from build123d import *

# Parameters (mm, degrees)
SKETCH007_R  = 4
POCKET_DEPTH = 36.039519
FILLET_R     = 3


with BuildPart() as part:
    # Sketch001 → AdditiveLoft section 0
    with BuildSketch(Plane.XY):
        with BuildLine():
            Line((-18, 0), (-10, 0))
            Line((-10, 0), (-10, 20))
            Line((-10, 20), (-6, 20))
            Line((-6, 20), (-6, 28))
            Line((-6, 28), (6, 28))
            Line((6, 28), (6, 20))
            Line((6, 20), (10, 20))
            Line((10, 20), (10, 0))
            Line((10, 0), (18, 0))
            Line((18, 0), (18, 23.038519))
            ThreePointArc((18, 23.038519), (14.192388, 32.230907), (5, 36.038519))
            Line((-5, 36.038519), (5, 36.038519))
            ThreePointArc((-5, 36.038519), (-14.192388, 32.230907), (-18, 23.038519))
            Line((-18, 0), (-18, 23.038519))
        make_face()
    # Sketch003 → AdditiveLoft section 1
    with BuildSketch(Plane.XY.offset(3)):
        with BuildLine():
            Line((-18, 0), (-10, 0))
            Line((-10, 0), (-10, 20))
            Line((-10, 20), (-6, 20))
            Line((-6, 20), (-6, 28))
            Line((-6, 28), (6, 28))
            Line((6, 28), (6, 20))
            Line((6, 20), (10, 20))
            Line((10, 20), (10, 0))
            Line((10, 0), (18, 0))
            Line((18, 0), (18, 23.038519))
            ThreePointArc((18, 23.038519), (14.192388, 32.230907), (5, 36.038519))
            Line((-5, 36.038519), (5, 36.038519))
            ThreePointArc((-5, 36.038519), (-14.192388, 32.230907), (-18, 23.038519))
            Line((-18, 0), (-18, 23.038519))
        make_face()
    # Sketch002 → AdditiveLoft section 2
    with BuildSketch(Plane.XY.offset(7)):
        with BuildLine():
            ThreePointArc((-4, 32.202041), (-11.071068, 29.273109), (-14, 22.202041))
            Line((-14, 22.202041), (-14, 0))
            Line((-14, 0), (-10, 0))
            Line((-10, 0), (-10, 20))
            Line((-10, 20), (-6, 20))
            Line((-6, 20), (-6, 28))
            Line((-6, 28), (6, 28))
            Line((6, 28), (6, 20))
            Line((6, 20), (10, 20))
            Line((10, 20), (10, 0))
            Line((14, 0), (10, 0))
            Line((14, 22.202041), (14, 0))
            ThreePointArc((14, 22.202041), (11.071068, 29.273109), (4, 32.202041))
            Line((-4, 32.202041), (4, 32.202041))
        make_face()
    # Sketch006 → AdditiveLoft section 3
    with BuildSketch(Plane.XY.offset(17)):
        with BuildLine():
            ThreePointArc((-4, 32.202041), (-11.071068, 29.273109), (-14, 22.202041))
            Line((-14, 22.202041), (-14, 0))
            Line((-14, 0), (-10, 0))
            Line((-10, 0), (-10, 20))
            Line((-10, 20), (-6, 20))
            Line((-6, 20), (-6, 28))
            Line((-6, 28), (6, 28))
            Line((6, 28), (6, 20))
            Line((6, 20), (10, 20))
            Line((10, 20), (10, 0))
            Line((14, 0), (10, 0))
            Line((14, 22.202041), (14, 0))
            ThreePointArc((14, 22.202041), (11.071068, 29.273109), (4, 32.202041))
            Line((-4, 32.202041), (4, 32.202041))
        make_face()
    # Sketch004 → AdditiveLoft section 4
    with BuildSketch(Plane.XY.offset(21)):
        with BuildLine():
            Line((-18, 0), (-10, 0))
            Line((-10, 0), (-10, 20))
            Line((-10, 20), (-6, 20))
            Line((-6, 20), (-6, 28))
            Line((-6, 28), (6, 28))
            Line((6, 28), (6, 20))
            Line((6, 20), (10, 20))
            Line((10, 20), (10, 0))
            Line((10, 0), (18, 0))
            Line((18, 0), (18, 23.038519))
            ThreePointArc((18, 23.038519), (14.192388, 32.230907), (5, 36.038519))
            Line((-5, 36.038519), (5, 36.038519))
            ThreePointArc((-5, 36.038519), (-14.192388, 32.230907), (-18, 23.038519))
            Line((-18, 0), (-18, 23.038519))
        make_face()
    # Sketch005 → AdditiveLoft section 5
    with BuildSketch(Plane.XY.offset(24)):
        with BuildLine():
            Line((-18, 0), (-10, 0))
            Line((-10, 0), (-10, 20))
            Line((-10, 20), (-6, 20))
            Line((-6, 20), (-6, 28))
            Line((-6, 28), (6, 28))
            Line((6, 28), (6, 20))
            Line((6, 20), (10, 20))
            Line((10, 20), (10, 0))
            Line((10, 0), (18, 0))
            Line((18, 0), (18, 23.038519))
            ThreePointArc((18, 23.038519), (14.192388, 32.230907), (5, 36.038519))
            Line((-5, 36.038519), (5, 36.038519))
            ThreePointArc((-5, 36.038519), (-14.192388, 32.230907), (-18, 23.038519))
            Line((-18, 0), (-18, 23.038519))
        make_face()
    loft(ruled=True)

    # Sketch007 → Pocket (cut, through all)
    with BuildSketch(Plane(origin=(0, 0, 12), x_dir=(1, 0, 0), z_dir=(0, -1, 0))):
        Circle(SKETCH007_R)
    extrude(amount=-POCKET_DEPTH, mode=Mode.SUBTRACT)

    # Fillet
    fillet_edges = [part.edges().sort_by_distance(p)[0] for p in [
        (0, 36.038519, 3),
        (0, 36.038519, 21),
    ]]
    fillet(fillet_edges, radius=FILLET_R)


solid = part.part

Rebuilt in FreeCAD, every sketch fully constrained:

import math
import FreeCAD as App
import Part
import Sketcher


def edges_at(feature, points):
    """Names of the edges that pass closest to the given points."""
    edges = feature.Shape.Edges
    near = lambda p: min(range(len(edges)), key=lambda i: edges[i].distToShape(Part.Vertex(*p))[0])
    return sorted({f"Edge{near(p) + 1}" for p in points})

doc = App.newDocument("Part")
body = doc.addObject("PartDesign::Body", "Body")

# Sketch on XY plane
sketch1 = body.newObject("Sketcher::SketchObject", "Sketch")
sketch1.AttachmentSupport = (doc.getObject("XY_Plane"), [""])
sketch1.MapMode = "FlatFace"
sketch1.addGeometry([
    Part.LineSegment(App.Vector(-18, 0, 0), App.Vector(-10, 0, 0)),  # 0
    Part.LineSegment(App.Vector(-10, 0, 0), App.Vector(-10, 20, 0)),  # 1
    Part.LineSegment(App.Vector(-10, 20, 0), App.Vector(-6, 20, 0)),  # 2
    Part.LineSegment(App.Vector(-6, 20, 0), App.Vector(-6, 28, 0)),  # 3
    Part.LineSegment(App.Vector(-6, 28, 0), App.Vector(6, 28, 0)),  # 4
    Part.LineSegment(App.Vector(6, 28, 0), App.Vector(6, 20, 0)),  # 5
    Part.LineSegment(App.Vector(6, 20, 0), App.Vector(10, 20, 0)),  # 6
    Part.LineSegment(App.Vector(10, 20, 0), App.Vector(10, 0, 0)),  # 7
    Part.LineSegment(App.Vector(10, 0, 0), App.Vector(18, 0, 0)),  # 8
    Part.LineSegment(App.Vector(18, 0, 0), App.Vector(18, 23, 0)),  # 9
    Part.ArcOfCircle(Part.Circle(App.Vector(5, 23, 0), App.Vector(0, 0, 1), 13), math.radians(0), math.radians(90)),  # 10
    Part.LineSegment(App.Vector(5, 36, 0), App.Vector(-5, 36, 0)),  # 11
    Part.ArcOfCircle(Part.Circle(App.Vector(-5, 23, 0), App.Vector(0, 0, 1), 13), math.radians(90), math.radians(180)),  # 12
    Part.LineSegment(App.Vector(-18, 23, 0), App.Vector(-18, 0, 0)),  # 13
], False)
sketch1.addConstraint([
    Sketcher.Constraint("Coincident", 0, 2, 1, 1),
    Sketcher.Constraint("Coincident", 1, 2, 2, 1),
    Sketcher.Constraint("Coincident", 2, 2, 3, 1),
    Sketcher.Constraint("Coincident", 3, 2, 4, 1),
    Sketcher.Constraint("Coincident", 4, 2, 5, 1),
    Sketcher.Constraint("Coincident", 5, 2, 6, 1),
    Sketcher.Constraint("Coincident", 6, 2, 7, 1),
    Sketcher.Constraint("Coincident", 7, 2, 8, 1),
    Sketcher.Constraint("Coincident", 8, 2, 9, 1),
    Sketcher.Constraint("Tangent", 9, 2, 10, 1),
    Sketcher.Constraint("Tangent", 10, 2, 11, 1),
    Sketcher.Constraint("Tangent", 11, 2, 12, 1),
    Sketcher.Constraint("Tangent", 12, 2, 13, 1),
    Sketcher.Constraint("Coincident", 13, 2, 0, 1),
    Sketcher.Constraint("Horizontal", 0),
    Sketcher.Constraint("Vertical", 1),
    Sketcher.Constraint("Horizontal", 2),
    Sketcher.Constraint("Vertical", 3),
    Sketcher.Constraint("Horizontal", 4),
    Sketcher.Constraint("Vertical", 5),
    Sketcher.Constraint("Horizontal", 6),
    Sketcher.Constraint("Vertical", 7),
    Sketcher.Constraint("Horizontal", 8),
    Sketcher.Constraint("Vertical", 9),
    Sketcher.Constraint("Horizontal", 11),
    Sketcher.Constraint("Vertical", 13),
    Sketcher.Constraint("Equal", 10, 12),
    Sketcher.Constraint("Symmetric", 0, 2, 7, 2, -1, 1),
    Sketcher.Constraint("Symmetric", 2, 2, 5, 2, -2),
    Sketcher.Constraint("Symmetric", 8, 2, 13, 2, -2),
    Sketcher.Constraint("Equal", 8, 3),
    Sketcher.Constraint("Radius", 10, 13.000001),
    Sketcher.Constraint("DistanceX", 0, 1, 0, 2, 8.0),
    Sketcher.Constraint("DistanceX", 2, 1, 2, 2, 4.0),
    Sketcher.Constraint("DistanceX", 4, 1, 4, 2, 12.0),
    Sketcher.Constraint("DistanceY", 1, 1, 1, 2, 20.0),
    Sketcher.Constraint("DistanceY", 9, 1, 9, 2, 23.038519),
])

# Sketch on XY plane
sketch2 = body.newObject("Sketcher::SketchObject", "Sketch001")
sketch2.AttachmentSupport = (doc.getObject("XY_Plane"), [""])
sketch2.MapMode = "FlatFace"
sketch2.AttachmentOffset = App.Placement(App.Vector(0, 0, 3), App.Rotation())
sketch2.addGeometry([
    Part.LineSegment(App.Vector(-18, 0, 0), App.Vector(-10, 0, 0)),  # 0
    Part.LineSegment(App.Vector(-10, 0, 0), App.Vector(-10, 20, 0)),  # 1
    Part.LineSegment(App.Vector(-10, 20, 0), App.Vector(-6, 20, 0)),  # 2
    Part.LineSegment(App.Vector(-6, 20, 0), App.Vector(-6, 28, 0)),  # 3
    Part.LineSegment(App.Vector(-6, 28, 0), App.Vector(6, 28, 0)),  # 4
    Part.LineSegment(App.Vector(6, 28, 0), App.Vector(6, 20, 0)),  # 5
    Part.LineSegment(App.Vector(6, 20, 0), App.Vector(10, 20, 0)),  # 6
    Part.LineSegment(App.Vector(10, 20, 0), App.Vector(10, 0, 0)),  # 7
    Part.LineSegment(App.Vector(10, 0, 0), App.Vector(18, 0, 0)),  # 8
    Part.LineSegment(App.Vector(18, 0, 0), App.Vector(18, 23, 0)),  # 9
    Part.ArcOfCircle(Part.Circle(App.Vector(5, 23, 0), App.Vector(0, 0, 1), 13), math.radians(0), math.radians(90)),  # 10
    Part.LineSegment(App.Vector(5, 36, 0), App.Vector(-5, 36, 0)),  # 11
    Part.ArcOfCircle(Part.Circle(App.Vector(-5, 23, 0), App.Vector(0, 0, 1), 13), math.radians(90), math.radians(180)),  # 12
    Part.LineSegment(App.Vector(-18, 23, 0), App.Vector(-18, 0, 0)),  # 13
], False)
sketch2.addConstraint([
    Sketcher.Constraint("Coincident", 0, 2, 1, 1),
    Sketcher.Constraint("Coincident", 1, 2, 2, 1),
    Sketcher.Constraint("Coincident", 2, 2, 3, 1),
    Sketcher.Constraint("Coincident", 3, 2, 4, 1),
    Sketcher.Constraint("Coincident", 4, 2, 5, 1),
    Sketcher.Constraint("Coincident", 5, 2, 6, 1),
    Sketcher.Constraint("Coincident", 6, 2, 7, 1),
    Sketcher.Constraint("Coincident", 7, 2, 8, 1),
    Sketcher.Constraint("Coincident", 8, 2, 9, 1),
    Sketcher.Constraint("Tangent", 9, 2, 10, 1),
    Sketcher.Constraint("Tangent", 10, 2, 11, 1),
    Sketcher.Constraint("Tangent", 11, 2, 12, 1),
    Sketcher.Constraint("Tangent", 12, 2, 13, 1),
    Sketcher.Constraint("Coincident", 13, 2, 0, 1),
    Sketcher.Constraint("Horizontal", 0),
    Sketcher.Constraint("Vertical", 1),
    Sketcher.Constraint("Horizontal", 2),
    Sketcher.Constraint("Vertical", 3),
    Sketcher.Constraint("Horizontal", 4),
    Sketcher.Constraint("Vertical", 5),
    Sketcher.Constraint("Horizontal", 6),
    Sketcher.Constraint("Vertical", 7),
    Sketcher.Constraint("Horizontal", 8),
    Sketcher.Constraint("Vertical", 9),
    Sketcher.Constraint("Horizontal", 11),
    Sketcher.Constraint("Vertical", 13),
    Sketcher.Constraint("Equal", 10, 12),
    Sketcher.Constraint("Symmetric", 0, 2, 7, 2, -1, 1),
    Sketcher.Constraint("Symmetric", 2, 2, 5, 2, -2),
    Sketcher.Constraint("Symmetric", 8, 2, 13, 2, -2),
    Sketcher.Constraint("Equal", 8, 3),
    Sketcher.Constraint("Radius", 10, 13.000001),
    Sketcher.Constraint("DistanceX", 0, 1, 0, 2, 8.0),
    Sketcher.Constraint("DistanceX", 2, 1, 2, 2, 4.0),
    Sketcher.Constraint("DistanceX", 4, 1, 4, 2, 12.0),
    Sketcher.Constraint("DistanceY", 1, 1, 1, 2, 20.0),
    Sketcher.Constraint("DistanceY", 9, 1, 9, 2, 23.038519),
])

# Sketch on XY plane
sketch3 = body.newObject("Sketcher::SketchObject", "Sketch002")
sketch3.AttachmentSupport = (doc.getObject("XY_Plane"), [""])
sketch3.MapMode = "FlatFace"
sketch3.AttachmentOffset = App.Placement(App.Vector(0, 0, 7), App.Rotation())
sketch3.addGeometry([
    Part.ArcOfCircle(Part.Circle(App.Vector(-4, 22.2, 0), App.Vector(0, 0, 1), 10), math.radians(90), math.radians(180)),  # 0
    Part.LineSegment(App.Vector(-14, 22.2, 0), App.Vector(-14, 0, 0)),  # 1
    Part.LineSegment(App.Vector(-14, 0, 0), App.Vector(-10, 0, 0)),  # 2
    Part.LineSegment(App.Vector(-10, 0, 0), App.Vector(-10, 20, 0)),  # 3
    Part.LineSegment(App.Vector(-10, 20, 0), App.Vector(-6, 20, 0)),  # 4
    Part.LineSegment(App.Vector(-6, 20, 0), App.Vector(-6, 28, 0)),  # 5
    Part.LineSegment(App.Vector(-6, 28, 0), App.Vector(6, 28, 0)),  # 6
    Part.LineSegment(App.Vector(6, 28, 0), App.Vector(6, 20, 0)),  # 7
    Part.LineSegment(App.Vector(6, 20, 0), App.Vector(10, 20, 0)),  # 8
    Part.LineSegment(App.Vector(10, 20, 0), App.Vector(10, 0, 0)),  # 9
    Part.LineSegment(App.Vector(10, 0, 0), App.Vector(14, 0, 0)),  # 10
    Part.LineSegment(App.Vector(14, 0, 0), App.Vector(14, 22.2, 0)),  # 11
    Part.ArcOfCircle(Part.Circle(App.Vector(4, 22.2, 0), App.Vector(0, 0, 1), 10), math.radians(0), math.radians(90)),  # 12
    Part.LineSegment(App.Vector(4, 32.2, 0), App.Vector(-4, 32.2, 0)),  # 13
], False)
sketch3.addConstraint([
    Sketcher.Constraint("Tangent", 0, 2, 1, 1),
    Sketcher.Constraint("Coincident", 1, 2, 2, 1),
    Sketcher.Constraint("Coincident", 2, 2, 3, 1),
    Sketcher.Constraint("Coincident", 3, 2, 4, 1),
    Sketcher.Constraint("Coincident", 4, 2, 5, 1),
    Sketcher.Constraint("Coincident", 5, 2, 6, 1),
    Sketcher.Constraint("Coincident", 6, 2, 7, 1),
    Sketcher.Constraint("Coincident", 7, 2, 8, 1),
    Sketcher.Constraint("Coincident", 8, 2, 9, 1),
    Sketcher.Constraint("Coincident", 9, 2, 10, 1),
    Sketcher.Constraint("Coincident", 10, 2, 11, 1),
    Sketcher.Constraint("Tangent", 11, 2, 12, 1),
    Sketcher.Constraint("Tangent", 12, 2, 13, 1),
    Sketcher.Constraint("Tangent", 13, 2, 0, 1),
    Sketcher.Constraint("Vertical", 1),
    Sketcher.Constraint("Horizontal", 2),
    Sketcher.Constraint("Vertical", 3),
    Sketcher.Constraint("Horizontal", 4),
    Sketcher.Constraint("Vertical", 5),
    Sketcher.Constraint("Horizontal", 6),
    Sketcher.Constraint("Vertical", 7),
    Sketcher.Constraint("Horizontal", 8),
    Sketcher.Constraint("Vertical", 9),
    Sketcher.Constraint("Horizontal", 10),
    Sketcher.Constraint("Vertical", 11),
    Sketcher.Constraint("Horizontal", 13),
    Sketcher.Constraint("Equal", 0, 12),
    Sketcher.Constraint("Symmetric", 2, 2, 9, 2, -1, 1),
    Sketcher.Constraint("Symmetric", 4, 2, 7, 2, -2),
    Sketcher.Constraint("Symmetric", 1, 2, 10, 2, -2),
    Sketcher.Constraint("Equal", 2, 4),
    Sketcher.Constraint("Equal", 13, 5),
    Sketcher.Constraint("Radius", 0, 9.999999),
    Sketcher.Constraint("DistanceX", 2, 1, 2, 2, 4.0),
    Sketcher.Constraint("DistanceX", 6, 1, 6, 2, 12.0),
    Sketcher.Constraint("DistanceY", 3, 1, 3, 2, 20.0),
    Sketcher.Constraint("DistanceY", 1, 2, 1, 1, 22.202041),
])

# Sketch on XY plane
sketch4 = body.newObject("Sketcher::SketchObject", "Sketch003")
sketch4.AttachmentSupport = (doc.getObject("XY_Plane"), [""])
sketch4.MapMode = "FlatFace"
sketch4.AttachmentOffset = App.Placement(App.Vector(0, 0, 17), App.Rotation())
sketch4.addGeometry([
    Part.ArcOfCircle(Part.Circle(App.Vector(-4, 22.2, 0), App.Vector(0, 0, 1), 10), math.radians(90), math.radians(180)),  # 0
    Part.LineSegment(App.Vector(-14, 22.2, 0), App.Vector(-14, 0, 0)),  # 1
    Part.LineSegment(App.Vector(-14, 0, 0), App.Vector(-10, 0, 0)),  # 2
    Part.LineSegment(App.Vector(-10, 0, 0), App.Vector(-10, 20, 0)),  # 3
    Part.LineSegment(App.Vector(-10, 20, 0), App.Vector(-6, 20, 0)),  # 4
    Part.LineSegment(App.Vector(-6, 20, 0), App.Vector(-6, 28, 0)),  # 5
    Part.LineSegment(App.Vector(-6, 28, 0), App.Vector(6, 28, 0)),  # 6
    Part.LineSegment(App.Vector(6, 28, 0), App.Vector(6, 20, 0)),  # 7
    Part.LineSegment(App.Vector(6, 20, 0), App.Vector(10, 20, 0)),  # 8
    Part.LineSegment(App.Vector(10, 20, 0), App.Vector(10, 0, 0)),  # 9
    Part.LineSegment(App.Vector(10, 0, 0), App.Vector(14, 0, 0)),  # 10
    Part.LineSegment(App.Vector(14, 0, 0), App.Vector(14, 22.2, 0)),  # 11
    Part.ArcOfCircle(Part.Circle(App.Vector(4, 22.2, 0), App.Vector(0, 0, 1), 10), math.radians(0), math.radians(90)),  # 12
    Part.LineSegment(App.Vector(4, 32.2, 0), App.Vector(-4, 32.2, 0)),  # 13
], False)
sketch4.addConstraint([
    Sketcher.Constraint("Tangent", 0, 2, 1, 1),
    Sketcher.Constraint("Coincident", 1, 2, 2, 1),
    Sketcher.Constraint("Coincident", 2, 2, 3, 1),
    Sketcher.Constraint("Coincident", 3, 2, 4, 1),
    Sketcher.Constraint("Coincident", 4, 2, 5, 1),
    Sketcher.Constraint("Coincident", 5, 2, 6, 1),
    Sketcher.Constraint("Coincident", 6, 2, 7, 1),
    Sketcher.Constraint("Coincident", 7, 2, 8, 1),
    Sketcher.Constraint("Coincident", 8, 2, 9, 1),
    Sketcher.Constraint("Coincident", 9, 2, 10, 1),
    Sketcher.Constraint("Coincident", 10, 2, 11, 1),
    Sketcher.Constraint("Tangent", 11, 2, 12, 1),
    Sketcher.Constraint("Tangent", 12, 2, 13, 1),
    Sketcher.Constraint("Tangent", 13, 2, 0, 1),
    Sketcher.Constraint("Vertical", 1),
    Sketcher.Constraint("Horizontal", 2),
    Sketcher.Constraint("Vertical", 3),
    Sketcher.Constraint("Horizontal", 4),
    Sketcher.Constraint("Vertical", 5),
    Sketcher.Constraint("Horizontal", 6),
    Sketcher.Constraint("Vertical", 7),
    Sketcher.Constraint("Horizontal", 8),
    Sketcher.Constraint("Vertical", 9),
    Sketcher.Constraint("Horizontal", 10),
    Sketcher.Constraint("Vertical", 11),
    Sketcher.Constraint("Horizontal", 13),
    Sketcher.Constraint("Equal", 0, 12),
    Sketcher.Constraint("Symmetric", 2, 2, 9, 2, -1, 1),
    Sketcher.Constraint("Symmetric", 4, 2, 7, 2, -2),
    Sketcher.Constraint("Symmetric", 1, 2, 10, 2, -2),
    Sketcher.Constraint("Equal", 2, 4),
    Sketcher.Constraint("Equal", 13, 5),
    Sketcher.Constraint("Radius", 0, 9.999999),
    Sketcher.Constraint("DistanceX", 2, 1, 2, 2, 4.0),
    Sketcher.Constraint("DistanceX", 6, 1, 6, 2, 12.0),
    Sketcher.Constraint("DistanceY", 3, 1, 3, 2, 20.0),
    Sketcher.Constraint("DistanceY", 1, 2, 1, 1, 22.202041),
])

# Sketch on XY plane
sketch5 = body.newObject("Sketcher::SketchObject", "Sketch004")
sketch5.AttachmentSupport = (doc.getObject("XY_Plane"), [""])
sketch5.MapMode = "FlatFace"
sketch5.AttachmentOffset = App.Placement(App.Vector(0, 0, 21), App.Rotation())
sketch5.addGeometry([
    Part.LineSegment(App.Vector(-18, 0, 0), App.Vector(-10, 0, 0)),  # 0
    Part.LineSegment(App.Vector(-10, 0, 0), App.Vector(-10, 20, 0)),  # 1
    Part.LineSegment(App.Vector(-10, 20, 0), App.Vector(-6, 20, 0)),  # 2
    Part.LineSegment(App.Vector(-6, 20, 0), App.Vector(-6, 28, 0)),  # 3
    Part.LineSegment(App.Vector(-6, 28, 0), App.Vector(6, 28, 0)),  # 4
    Part.LineSegment(App.Vector(6, 28, 0), App.Vector(6, 20, 0)),  # 5
    Part.LineSegment(App.Vector(6, 20, 0), App.Vector(10, 20, 0)),  # 6
    Part.LineSegment(App.Vector(10, 20, 0), App.Vector(10, 0, 0)),  # 7
    Part.LineSegment(App.Vector(10, 0, 0), App.Vector(18, 0, 0)),  # 8
    Part.LineSegment(App.Vector(18, 0, 0), App.Vector(18, 23, 0)),  # 9
    Part.ArcOfCircle(Part.Circle(App.Vector(5, 23, 0), App.Vector(0, 0, 1), 13), math.radians(0), math.radians(90)),  # 10
    Part.LineSegment(App.Vector(5, 36, 0), App.Vector(-5, 36, 0)),  # 11
    Part.ArcOfCircle(Part.Circle(App.Vector(-5, 23, 0), App.Vector(0, 0, 1), 13), math.radians(90), math.radians(180)),  # 12
    Part.LineSegment(App.Vector(-18, 23, 0), App.Vector(-18, 0, 0)),  # 13
], False)
sketch5.addConstraint([
    Sketcher.Constraint("Coincident", 0, 2, 1, 1),
    Sketcher.Constraint("Coincident", 1, 2, 2, 1),
    Sketcher.Constraint("Coincident", 2, 2, 3, 1),
    Sketcher.Constraint("Coincident", 3, 2, 4, 1),
    Sketcher.Constraint("Coincident", 4, 2, 5, 1),
    Sketcher.Constraint("Coincident", 5, 2, 6, 1),
    Sketcher.Constraint("Coincident", 6, 2, 7, 1),
    Sketcher.Constraint("Coincident", 7, 2, 8, 1),
    Sketcher.Constraint("Coincident", 8, 2, 9, 1),
    Sketcher.Constraint("Tangent", 9, 2, 10, 1),
    Sketcher.Constraint("Tangent", 10, 2, 11, 1),
    Sketcher.Constraint("Tangent", 11, 2, 12, 1),
    Sketcher.Constraint("Tangent", 12, 2, 13, 1),
    Sketcher.Constraint("Coincident", 13, 2, 0, 1),
    Sketcher.Constraint("Horizontal", 0),
    Sketcher.Constraint("Vertical", 1),
    Sketcher.Constraint("Horizontal", 2),
    Sketcher.Constraint("Vertical", 3),
    Sketcher.Constraint("Horizontal", 4),
    Sketcher.Constraint("Vertical", 5),
    Sketcher.Constraint("Horizontal", 6),
    Sketcher.Constraint("Vertical", 7),
    Sketcher.Constraint("Horizontal", 8),
    Sketcher.Constraint("Vertical", 9),
    Sketcher.Constraint("Horizontal", 11),
    Sketcher.Constraint("Vertical", 13),
    Sketcher.Constraint("Equal", 10, 12),
    Sketcher.Constraint("Symmetric", 0, 2, 7, 2, -1, 1),
    Sketcher.Constraint("Symmetric", 2, 2, 5, 2, -2),
    Sketcher.Constraint("Symmetric", 8, 2, 13, 2, -2),
    Sketcher.Constraint("Equal", 8, 3),
    Sketcher.Constraint("Radius", 10, 13.000001),
    Sketcher.Constraint("DistanceX", 0, 1, 0, 2, 8.0),
    Sketcher.Constraint("DistanceX", 2, 1, 2, 2, 4.0),
    Sketcher.Constraint("DistanceX", 4, 1, 4, 2, 12.0),
    Sketcher.Constraint("DistanceY", 1, 1, 1, 2, 20.0),
    Sketcher.Constraint("DistanceY", 9, 1, 9, 2, 23.038519),
])

# Sketch on XY plane
sketch6 = body.newObject("Sketcher::SketchObject", "Sketch005")
sketch6.AttachmentSupport = (doc.getObject("XY_Plane"), [""])
sketch6.MapMode = "FlatFace"
sketch6.AttachmentOffset = App.Placement(App.Vector(0, 0, 24), App.Rotation())
sketch6.addGeometry([
    Part.LineSegment(App.Vector(-18, 0, 0), App.Vector(-10, 0, 0)),  # 0
    Part.LineSegment(App.Vector(-10, 0, 0), App.Vector(-10, 20, 0)),  # 1
    Part.LineSegment(App.Vector(-10, 20, 0), App.Vector(-6, 20, 0)),  # 2
    Part.LineSegment(App.Vector(-6, 20, 0), App.Vector(-6, 28, 0)),  # 3
    Part.LineSegment(App.Vector(-6, 28, 0), App.Vector(6, 28, 0)),  # 4
    Part.LineSegment(App.Vector(6, 28, 0), App.Vector(6, 20, 0)),  # 5
    Part.LineSegment(App.Vector(6, 20, 0), App.Vector(10, 20, 0)),  # 6
    Part.LineSegment(App.Vector(10, 20, 0), App.Vector(10, 0, 0)),  # 7
    Part.LineSegment(App.Vector(10, 0, 0), App.Vector(18, 0, 0)),  # 8
    Part.LineSegment(App.Vector(18, 0, 0), App.Vector(18, 23, 0)),  # 9
    Part.ArcOfCircle(Part.Circle(App.Vector(5, 23, 0), App.Vector(0, 0, 1), 13), math.radians(0), math.radians(90)),  # 10
    Part.LineSegment(App.Vector(5, 36, 0), App.Vector(-5, 36, 0)),  # 11
    Part.ArcOfCircle(Part.Circle(App.Vector(-5, 23, 0), App.Vector(0, 0, 1), 13), math.radians(90), math.radians(180)),  # 12
    Part.LineSegment(App.Vector(-18, 23, 0), App.Vector(-18, 0, 0)),  # 13
], False)
sketch6.addConstraint([
    Sketcher.Constraint("Coincident", 0, 2, 1, 1),
    Sketcher.Constraint("Coincident", 1, 2, 2, 1),
    Sketcher.Constraint("Coincident", 2, 2, 3, 1),
    Sketcher.Constraint("Coincident", 3, 2, 4, 1),
    Sketcher.Constraint("Coincident", 4, 2, 5, 1),
    Sketcher.Constraint("Coincident", 5, 2, 6, 1),
    Sketcher.Constraint("Coincident", 6, 2, 7, 1),
    Sketcher.Constraint("Coincident", 7, 2, 8, 1),
    Sketcher.Constraint("Coincident", 8, 2, 9, 1),
    Sketcher.Constraint("Tangent", 9, 2, 10, 1),
    Sketcher.Constraint("Tangent", 10, 2, 11, 1),
    Sketcher.Constraint("Tangent", 11, 2, 12, 1),
    Sketcher.Constraint("Tangent", 12, 2, 13, 1),
    Sketcher.Constraint("Coincident", 13, 2, 0, 1),
    Sketcher.Constraint("Horizontal", 0),
    Sketcher.Constraint("Vertical", 1),
    Sketcher.Constraint("Horizontal", 2),
    Sketcher.Constraint("Vertical", 3),
    Sketcher.Constraint("Horizontal", 4),
    Sketcher.Constraint("Vertical", 5),
    Sketcher.Constraint("Horizontal", 6),
    Sketcher.Constraint("Vertical", 7),
    Sketcher.Constraint("Horizontal", 8),
    Sketcher.Constraint("Vertical", 9),
    Sketcher.Constraint("Horizontal", 11),
    Sketcher.Constraint("Vertical", 13),
    Sketcher.Constraint("Equal", 10, 12),
    Sketcher.Constraint("Symmetric", 0, 2, 7, 2, -1, 1),
    Sketcher.Constraint("Symmetric", 2, 2, 5, 2, -2),
    Sketcher.Constraint("Symmetric", 8, 2, 13, 2, -2),
    Sketcher.Constraint("Equal", 8, 3),
    Sketcher.Constraint("Radius", 10, 13.000001),
    Sketcher.Constraint("DistanceX", 0, 1, 0, 2, 8.0),
    Sketcher.Constraint("DistanceX", 2, 1, 2, 2, 4.0),
    Sketcher.Constraint("DistanceX", 4, 1, 4, 2, 12.0),
    Sketcher.Constraint("DistanceY", 1, 1, 1, 2, 20.0),
    Sketcher.Constraint("DistanceY", 9, 1, 9, 2, 23.038519),
])

additiveloft = body.newObject("PartDesign::AdditiveLoft", "AdditiveLoft")
additiveloft.Profile = sketch1
additiveloft.Sections = [sketch2, sketch3, sketch4, sketch5, sketch6]
additiveloft.Ruled = True

# Sketch on XZ plane
sketch7 = body.newObject("Sketcher::SketchObject", "Sketch006")
sketch7.AttachmentSupport = (doc.getObject("XZ_Plane"), [""])
sketch7.MapMode = "FlatFace"
sketch7.addGeometry(Part.Circle(App.Vector(0, 12, 0), App.Vector(0, 0, 1), 4), False)
sketch7.addConstraint([
    Sketcher.Constraint("PointOnObject", 0, 3, -2),
    Sketcher.Constraint("Diameter", 0, 8.0),
    Sketcher.Constraint("DistanceY", -1, 1, 0, 3, 12.0),
])
pocket1 = body.newObject("PartDesign::Pocket", "Pocket")
pocket1.Profile = sketch7
pocket1.Type = "ThroughAll"
doc.recompute()

fillet = body.newObject("PartDesign::Fillet", "Fillet")
fillet.Base = (pocket1, edges_at(pocket1, [(0, 36.039, 3), (0, 36.039, 21)]))
fillet.Radius = 3

doc.recompute()
